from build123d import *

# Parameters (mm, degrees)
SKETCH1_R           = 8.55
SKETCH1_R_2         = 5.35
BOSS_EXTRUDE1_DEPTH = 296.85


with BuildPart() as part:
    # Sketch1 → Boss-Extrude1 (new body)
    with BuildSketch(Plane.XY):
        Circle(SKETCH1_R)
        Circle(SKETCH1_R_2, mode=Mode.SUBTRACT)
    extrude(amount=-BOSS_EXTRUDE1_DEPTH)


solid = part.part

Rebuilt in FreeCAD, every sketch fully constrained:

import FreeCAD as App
import Part
import Sketcher

V = App.Vector
Q = App.Units.Quantity

doc = App.newDocument("Part")
body = doc.addObject("PartDesign::Body", "Body")

# Sketch on XY plane
sketch1 = body.newObject("Sketcher::SketchObject", "Sketch")
sketch1.AttachmentSupport = (doc.getObject("XY_Plane"), [""])
sketch1.MapMode = "FlatFace"
sketch1.addGeometry([
    Part.Circle(V(0, 0, 0), V(0, 0, 1), 9),
    Part.Circle(V(0, 0, 0), V(0, 0, 1), 5),
], False)
sketch1.addConstraint([
    Sketcher.Constraint("Coincident", 0, 3, -1, 1),
    Sketcher.Constraint("Coincident", 1, 3, -1, 1),
    Sketcher.Constraint("Diameter", 0, Q("17.1 mm")),
    Sketcher.Constraint("Diameter", 1, Q("10.7 mm")),
])
pad1 = body.newObject("PartDesign::Pad", "Pad")
pad1.Profile = sketch1
pad1.Length = 296.85
pad1.Reversed = True

doc.recompute()
